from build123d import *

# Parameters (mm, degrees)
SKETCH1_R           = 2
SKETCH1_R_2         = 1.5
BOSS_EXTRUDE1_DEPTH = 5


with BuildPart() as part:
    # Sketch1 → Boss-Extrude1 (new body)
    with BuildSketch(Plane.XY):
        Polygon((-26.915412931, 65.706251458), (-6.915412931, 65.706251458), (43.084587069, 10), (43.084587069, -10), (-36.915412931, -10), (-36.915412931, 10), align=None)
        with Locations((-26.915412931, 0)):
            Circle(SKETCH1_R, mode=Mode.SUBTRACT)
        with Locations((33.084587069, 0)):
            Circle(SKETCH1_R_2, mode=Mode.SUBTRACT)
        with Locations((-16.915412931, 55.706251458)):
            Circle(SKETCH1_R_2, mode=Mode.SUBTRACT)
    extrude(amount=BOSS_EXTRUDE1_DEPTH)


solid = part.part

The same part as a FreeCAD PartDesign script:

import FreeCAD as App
import Part
import Sketcher

V = App.Vector
Q = App.Units.Quantity


def add_polygon(sketch, points):
    """Adds a closed chain of lines whose ends are joined by coincident constraints."""
    first, n = sketch.GeometryCount, len(points)
    for a, b in zip(points, points[1:] + points[:1]):
        sketch.addGeometry(Part.LineSegment(App.Vector(*a, 0), App.Vector(*b, 0)), False)
    for i in range(n):
        sketch.addConstraint(Sketcher.Constraint("Coincident", first + i, 2, first + (i + 1) % n, 1))

doc = App.newDocument("Part")
body = doc.addObject("PartDesign::Body", "Body")

# Sketch on XY plane
sketch1 = body.newObject("Sketcher::SketchObject", "Sketch")
sketch1.AttachmentSupport = (doc.getObject("XY_Plane"), [""])
sketch1.MapMode = "FlatFace"
add_polygon(sketch1, [(-6.9, 65.7), (-26.9, 65.7), (-36.9, 10), (-36.9, -10), (43.1, -10), (43.1, 10)])  # lines 0-5
sketch1.addGeometry(Part.Circle(V(33.1, 0, 0), V(0, 0, 1), 1.5), False)  # 6
sketch1.addGeometry(Part.Circle(V(-26.9, 0, 0), V(0, 0, 1), 2), False)  # 7
sketch1.addGeometry(Part.Circle(V(-16.9, 55.7, 0), V(0, 0, 1), 1.5), False)  # 8
sketch1.addConstraint(Sketcher.Constraint("Horizontal", 0))
sketch1.addConstraint(Sketcher.Constraint("Vertical", 2))
sketch1.addConstraint(Sketcher.Constraint("Horizontal", 3))
sketch1.addConstraint(Sketcher.Constraint("Vertical", 4))
sketch1.addConstraint(Sketcher.Constraint("Equal", 6, 8))
sketch1.addConstraint(Sketcher.Constraint("PointOnObject", 6, 3, -1))
sketch1.addConstraint(Sketcher.Constraint("PointOnObject", 7, 3, -1))
sketch1.addConstraint(Sketcher.Constraint("Horizontal", 1, 2, 4, 2))
sketch1.addConstraint(Sketcher.Constraint("Vertical", 7, 3, 0, 2))
sketch1.addConstraint(Sketcher.Constraint("Equal", 0, 2))
sketch1.addConstraint(Sketcher.Constraint("Diameter", 6, Q("3 mm")))
sketch1.addConstraint(Sketcher.Constraint("Diameter", 7, Q("4 mm")))
sketch1.addConstraint(Sketcher.Constraint("DistanceX", 0, 2, 0, 1, Q("20 mm")))
sketch1.addConstraint(Sketcher.Constraint("DistanceX", 3, 1, 3, 2, Q("80 mm")))
sketch1.addConstraint(Sketcher.Constraint("DistanceY", -1, 1, 1, 2, Q("10 mm")))
sketch1.addConstraint(Sketcher.Constraint("DistanceX", 7, 3, 6, 3, Q("60 mm")))
sketch1.addConstraint(Sketcher.Constraint("DistanceX", 7, 3, 8, 3, Q("10 mm")))
sketch1.addConstraint(Sketcher.Constraint("DistanceY", 8, 3, 0, 2, Q("10 mm")))
sketch1.addConstraint(Sketcher.Constraint("DistanceX", 1, 2, 7, 3, Q("10 mm")))
sketch1.addConstraint(Sketcher.Constraint("Distance", 1, Q("56.5967 mm")))
sketch1.addConstraint(Sketcher.Constraint("DistanceX", -1, 1, 6, 3, Q("33.084587 mm")))
pad1 = body.newObject("PartDesign::Pad", "Pad")
pad1.Profile = sketch1
pad1.Length = 5

doc.recompute()
